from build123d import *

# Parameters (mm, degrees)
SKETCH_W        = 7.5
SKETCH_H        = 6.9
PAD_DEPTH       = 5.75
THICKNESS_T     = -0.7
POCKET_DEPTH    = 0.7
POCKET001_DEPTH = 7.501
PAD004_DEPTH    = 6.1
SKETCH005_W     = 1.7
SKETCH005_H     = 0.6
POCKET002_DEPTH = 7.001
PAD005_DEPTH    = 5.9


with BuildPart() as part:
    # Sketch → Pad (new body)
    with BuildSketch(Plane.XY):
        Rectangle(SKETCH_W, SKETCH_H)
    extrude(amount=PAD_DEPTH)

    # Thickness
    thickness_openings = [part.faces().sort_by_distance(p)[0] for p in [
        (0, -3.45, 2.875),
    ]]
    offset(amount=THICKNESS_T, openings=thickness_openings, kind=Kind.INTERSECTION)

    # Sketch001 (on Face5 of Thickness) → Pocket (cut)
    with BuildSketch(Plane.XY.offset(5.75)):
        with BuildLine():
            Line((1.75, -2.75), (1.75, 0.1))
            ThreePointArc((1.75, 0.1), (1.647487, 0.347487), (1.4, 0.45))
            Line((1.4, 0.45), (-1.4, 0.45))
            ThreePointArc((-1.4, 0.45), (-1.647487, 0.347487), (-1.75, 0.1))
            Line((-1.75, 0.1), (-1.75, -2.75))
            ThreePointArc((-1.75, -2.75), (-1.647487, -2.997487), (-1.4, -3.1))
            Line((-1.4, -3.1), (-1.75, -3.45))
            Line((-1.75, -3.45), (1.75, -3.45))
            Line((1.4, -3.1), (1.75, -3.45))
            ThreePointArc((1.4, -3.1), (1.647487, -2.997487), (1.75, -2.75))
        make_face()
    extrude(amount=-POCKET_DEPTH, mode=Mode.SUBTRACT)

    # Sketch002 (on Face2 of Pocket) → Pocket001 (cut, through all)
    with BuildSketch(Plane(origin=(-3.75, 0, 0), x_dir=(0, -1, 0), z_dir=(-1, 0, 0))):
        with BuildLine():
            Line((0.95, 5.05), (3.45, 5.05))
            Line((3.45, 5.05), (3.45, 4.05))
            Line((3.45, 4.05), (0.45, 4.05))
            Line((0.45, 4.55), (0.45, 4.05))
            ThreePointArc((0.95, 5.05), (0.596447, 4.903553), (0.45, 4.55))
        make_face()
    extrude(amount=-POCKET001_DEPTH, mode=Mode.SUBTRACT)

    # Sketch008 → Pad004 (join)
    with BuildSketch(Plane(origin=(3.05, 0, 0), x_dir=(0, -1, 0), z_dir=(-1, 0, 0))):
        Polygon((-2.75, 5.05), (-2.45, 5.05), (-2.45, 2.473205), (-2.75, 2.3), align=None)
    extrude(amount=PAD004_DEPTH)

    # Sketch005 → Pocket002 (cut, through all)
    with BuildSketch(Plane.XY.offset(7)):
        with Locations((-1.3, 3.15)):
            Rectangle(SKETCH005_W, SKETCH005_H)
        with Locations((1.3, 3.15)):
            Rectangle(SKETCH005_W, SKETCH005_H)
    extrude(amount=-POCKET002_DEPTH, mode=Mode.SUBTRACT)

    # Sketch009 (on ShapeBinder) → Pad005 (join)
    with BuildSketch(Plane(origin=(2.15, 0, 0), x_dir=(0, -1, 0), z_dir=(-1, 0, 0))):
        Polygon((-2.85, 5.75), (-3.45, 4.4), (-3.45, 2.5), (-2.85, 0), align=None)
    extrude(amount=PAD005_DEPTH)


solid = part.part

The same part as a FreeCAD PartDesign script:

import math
import FreeCAD as App
import Part
import Sketcher

V = App.Vector
Q = App.Units.Quantity


def faces_at(feature, points):
    """Names of the faces that lie closest to the given points."""
    faces = feature.Shape.Faces
    near = lambda p: min(range(len(faces)), key=lambda i: faces[i].distToShape(Part.Vertex(*p))[0])
    return sorted({f"Face{near(p) + 1}" for p in points})

doc = App.newDocument("Part")
body = doc.addObject("PartDesign::Body", "Body")

# Sketch on XY plane
sketch1 = body.newObject("Sketcher::SketchObject", "Sketch")
sketch1.AttachmentSupport = (doc.getObject("XY_Plane"), [""])
sketch1.MapMode = "FlatFace"
sketch1.addGeometry(Part.LineSegment(V(-3.75, 3.45, 0), V(-3.75, -3.45, 0)), False)
sketch1.addGeometry(Part.LineSegment(V(-3.75, -3.45, 0), V(3.75, -3.45, 0)), False)
sketch1.addGeometry(Part.LineSegment(V(3.75, -3.45, 0), V(3.75, 3.45, 0)), False)
sketch1.addGeometry(Part.LineSegment(V(3.75, 3.45, 0), V(-3.75, 3.45, 0)), False)
sketch1.addConstraint(Sketcher.Constraint("Coincident", 0, 2, 1, 1))
sketch1.addConstraint(Sketcher.Constraint("Coincident", 1, 2, 2, 1))
sketch1.addConstraint(Sketcher.Constraint("Coincident", 2, 2, 3, 1))
sketch1.addConstraint(Sketcher.Constraint("Coincident", 3, 2, 0, 1))
sketch1.addConstraint(Sketcher.Constraint("Vertical", 0))
sketch1.addConstraint(Sketcher.Constraint("Horizontal", 1))
sketch1.addConstraint(Sketcher.Constraint("Vertical", 2))
sketch1.addConstraint(Sketcher.Constraint("Horizontal", 3))
sketch1.addConstraint(Sketcher.Constraint("Symmetric", 0, 2, 2, 2, -1, 1))
sketch1.addConstraint(Sketcher.Constraint("DistanceX", 1, 1, 1, 2, Q("7.5 mm")))
sketch1.addConstraint(Sketcher.Constraint("DistanceY", 0, 2, 0, 1, Q("6.9 mm")))
pad1 = body.newObject("PartDesign::Pad", "Pad")
pad1.Profile = sketch1
pad1.Length = 5.75
doc.recompute()

thickness = body.newObject("PartDesign::Thickness", "Thickness")
thickness.Base = (pad1, faces_at(pad1, [(0, -3.45, 2.875)]))
thickness.Value = 0.7
thickness.Reversed = True
thickness.Join = "Intersection"

# Sketch on XY plane
sketch2 = body.newObject("Sketcher::SketchObject", "Sketch001")
sketch2.AttachmentSupport = (doc.getObject("XY_Plane"), [""])
sketch2.MapMode = "FlatFace"
sketch2.AttachmentOffset = App.Placement(V(0, 0, 5.75), App.Rotation())
sketch2.addGeometry(Part.LineSegment(V(1.75, -2.75, 0), V(1.75, 0.1, 0)), False)
sketch2.addGeometry(Part.ArcOfCircle(Part.Circle(V(1.399999, 0.099999, 0), V(0, 0, 1), 0.350001), math.radians(0.000209), math.radians(89.999791)), False)
sketch2.addGeometry(Part.LineSegment(V(1.4, 0.45, 0), V(-1.4, 0.45, 0)), False)
sketch2.addGeometry(Part.ArcOfCircle(Part.Circle(V(-1.399999, 0.099999, 0), V(0, 0, 1), 0.350001), math.radians(90.000209), math.radians(179.999791)), False)
sketch2.addGeometry(Part.LineSegment(V(-1.75, 0.1, 0), V(-1.75, -2.75, 0)), False)
sketch2.addGeometry(Part.ArcOfCircle(Part.Circle(V(-1.399999, -2.749999, 0), V(0, 0, 1), 0.350001), math.radians(-179.999791), math.radians(-90.000209)), False)
sketch2.addGeometry(Part.LineSegment(V(-1.4, -3.1, 0), V(-1.75, -3.45, 0)), False)
sketch2.addGeometry(Part.LineSegment(V(-1.75, -3.45, 0), V(1.75, -3.45, 0)), False)
sketch2.addGeometry(Part.LineSegment(V(1.75, -3.45, 0), V(1.4, -3.1, 0)), False)
sketch2.addGeometry(Part.ArcOfCircle(Part.Circle(V(1.399999, -2.749999, 0), V(0, 0, 1), 0.350001), math.radians(-89.999791), math.radians(-0.000209)), False)
sketch2.addConstraint(Sketcher.Constraint("Coincident", 0, 2, 1, 1))
sketch2.addConstraint(Sketcher.Constraint("Coincident", 1, 2, 2, 1))
sketch2.addConstraint(Sketcher.Constraint("Coincident", 2, 2, 3, 1))
sketch2.addConstraint(Sketcher.Constraint("Coincident", 3, 2, 4, 1))
sketch2.addConstraint(Sketcher.Constraint("Coincident", 4, 2, 5, 1))
sketch2.addConstraint(Sketcher.Constraint("Coincident", 5, 2, 6, 1))
sketch2.addConstraint(Sketcher.Constraint("Coincident", 6, 2, 7, 1))
sketch2.addConstraint(Sketcher.Constraint("Coincident", 7, 2, 8, 1))
sketch2.addConstraint(Sketcher.Constraint("Coincident", 8, 2, 9, 1))
sketch2.addConstraint(Sketcher.Constraint("Coincident", 9, 2, 0, 1))
sketch2.addConstraint(Sketcher.Constraint("Vertical", 0))
sketch2.addConstraint(Sketcher.Constraint("Horizontal", 2))
sketch2.addConstraint(Sketcher.Constraint("Vertical", 4))
sketch2.addConstraint(Sketcher.Constraint("Horizontal", 7))
sketch2.addConstraint(Sketcher.Constraint("Equal", 1, 3))
sketch2.addConstraint(Sketcher.Constraint("Equal", 3, 5))
sketch2.addConstraint(Sketcher.Constraint("Equal", 5, 9))
sketch2.addConstraint(Sketcher.Constraint("Symmetric", 5, 3, 9, 3, -2))
sketch2.addConstraint(Sketcher.Constraint("Perpendicular", 6, 8))
sketch2.addConstraint(Sketcher.Constraint("Horizontal", 3, 3, 0, 2))
sketch2.addConstraint(Sketcher.Constraint("Horizontal", 0, 2, 3, 2))
sketch2.addConstraint(Sketcher.Constraint("Horizontal", 9, 3, 4, 2))
sketch2.addConstraint(Sketcher.Constraint("Horizontal", 4, 2, 9, 2))
sketch2.addConstraint(Sketcher.Constraint("Vertical", 9, 3, 1, 2))
sketch2.addConstraint(Sketcher.Constraint("Vertical", 5, 3, 2, 2))
sketch2.addConstraint(Sketcher.Constraint("Vertical", 2, 2, 5, 2))
sketch2.addConstraint(Sketcher.Constraint("Vertical", 4, 2, 6, 2))
sketch2.addConstraint(Sketcher.Constraint("Vertical", 0, 2, 7, 2))
sketch2.addConstraint(Sketcher.Constraint("Vertical", 1, 2, 8, 2))
sketch2.addConstraint(Sketcher.Constraint("Radius", 1, Q("0.350001 mm")))
sketch2.addConstraint(Sketcher.Constraint("DistanceX", 2, 2, 2, 1, Q("2.8 mm")))
sketch2.addConstraint(Sketcher.Constraint("DistanceY", 0, 1, 0, 2, Q("2.85 mm")))
sketch2.addConstraint(Sketcher.Constraint("DistanceY", -1, 1, 1, 3, Q("0.099999 mm")))
pocket1 = body.newObject("PartDesign::Pocket", "Pocket")
pocket1.Profile = sketch2
pocket1.Length = 0.7

# Sketch on YZ plane
sketch3 = body.newObject("Sketcher::SketchObject", "Sketch002")
sketch3.AttachmentSupport = (doc.getObject("YZ_Plane"), [""])
sketch3.MapMode = "FlatFace"
sketch3.AttachmentOffset = App.Placement(V(0, 0, -3.75), App.Rotation())
sketch3.addGeometry(Part.LineSegment(V(-3.45, 5.05, 0), V(-0.95, 5.05, 0)), False)
sketch3.addGeometry(Part.ArcOfCircle(Part.Circle(V(-0.950001, 4.549999, 0), V(0, 0, 1), 0.500001), math.radians(0.000153), math.radians(89.999847)), False)
sketch3.addGeometry(Part.LineSegment(V(-0.45, 4.55, 0), V(-0.45, 4.05, 0)), False)
sketch3.addGeometry(Part.LineSegment(V(-0.45, 4.05, 0), V(-3.45, 4.05, 0)), False)
sketch3.addGeometry(Part.LineSegment(V(-3.45, 4.05, 0), V(-3.45, 5.05, 0)), False)
sketch3.addConstraint(Sketcher.Constraint("Coincident", 0, 2, 1, 2))
sketch3.addConstraint(Sketcher.Constraint("Coincident", 1, 1, 2, 1))
sketch3.addConstraint(Sketcher.Constraint("Coincident", 2, 2, 3, 1))
sketch3.addConstraint(Sketcher.Constraint("Coincident", 3, 2, 4, 1))
sketch3.addConstraint(Sketcher.Constraint("Coincident", 4, 2, 0, 1))
sketch3.addConstraint(Sketcher.Constraint("Horizontal", 0))
sketch3.addConstraint(Sketcher.Constraint("Vertical", 2))
sketch3.addConstraint(Sketcher.Constraint("Horizontal", 3))
sketch3.addConstraint(Sketcher.Constraint("Vertical", 4))
sketch3.addConstraint(Sketcher.Constraint("Vertical", 1, 3, 0, 2))
sketch3.addConstraint(Sketcher.Constraint("Radius", 1, Q("0.500001 mm")))
sketch3.addConstraint(Sketcher.Constraint("DistanceX", 3, 2, 3, 1, Q("3 mm")))
sketch3.addConstraint(Sketcher.Constraint("DistanceY", 4, 1, 4, 2, Q("1 mm")))
sketch3.addConstraint(Sketcher.Constraint("DistanceY", 2, 2, 2, 1, Q("0.5 mm")))
sketch3.addConstraint(Sketcher.Constraint("DistanceX", 1, 3, -1, 1, Q("0.950001 mm")))
sketch3.addConstraint(Sketcher.Constraint("DistanceY", -1, 1, 1, 3, Q("4.549999 mm")))
pocket2 = body.newObject("PartDesign::Pocket", "Pocket001")
pocket2.Profile = sketch3
pocket2.Type = "ThroughAll"
pocket2.Reversed = True

# Sketch on YZ plane
sketch4 = body.newObject("Sketcher::SketchObject", "Sketch003")
sketch4.AttachmentSupport = (doc.getObject("YZ_Plane"), [""])
sketch4.MapMode = "FlatFace"
sketch4.AttachmentOffset = App.Placement(V(0, 0, 3.05), App.Rotation())
sketch4.addGeometry(Part.LineSegment(V(2.45, 5.05, 0), V(2.75, 5.05, 0)), False)
sketch4.addGeometry(Part.LineSegment(V(2.75, 5.05, 0), V(2.75, 2.3, 0)), False)
sketch4.addGeometry(Part.LineSegment(V(2.75, 2.3, 0), V(2.45, 2.473205, 0)), False)
sketch4.addGeometry(Part.LineSegment(V(2.45, 2.473205, 0), V(2.45, 5.05, 0)), False)
sketch4.addConstraint(Sketcher.Constraint("Coincident", 0, 2, 1, 1))
sketch4.addConstraint(Sketcher.Constraint("Coincident", 1, 2, 2, 1))
sketch4.addConstraint(Sketcher.Constraint("Coincident", 2, 2, 3, 1))
sketch4.addConstraint(Sketcher.Constraint("Coincident", 3, 2, 0, 1))
sketch4.addConstraint(Sketcher.Constraint("Horizontal", 0))
sketch4.addConstraint(Sketcher.Constraint("Vertical", 1))
sketch4.addConstraint(Sketcher.Constraint("Vertical", 3))
sketch4.addConstraint(Sketcher.Constraint("Angle", 2, Q("150.000012 deg")))
sketch4.addConstraint(Sketcher.Constraint("DistanceX", 0, 1, 0, 2, Q("0.3 mm")))
sketch4.addConstraint(Sketcher.Constraint("DistanceY", 1, 2, 1, 1, Q("2.75 mm")))
sketch4.addConstraint(Sketcher.Constraint("DistanceY", -1, 1, 1, 2, Q("2.3 mm")))
sketch4.addConstraint(Sketcher.Constraint("DistanceX", -1, 1, 0, 2, Q("2.75 mm")))
pad2 = body.newObject("PartDesign::Pad", "Pad001")
pad2.Profile = sketch4
pad2.Length = 6.1
pad2.Reversed = True

# Sketch on XY plane
sketch5 = body.newObject("Sketcher::SketchObject", "Sketch004")
sketch5.AttachmentSupport = (doc.getObject("XY_Plane"), [""])
sketch5.MapMode = "FlatFace"
sketch5.AttachmentOffset = App.Placement(V(0, 0, 7), App.Rotation())
sketch5.addGeometry(Part.LineSegment(V(-2.15, 3.45, 0), V(-2.15, 2.85, 0)), False)
sketch5.addGeometry(Part.LineSegment(V(-2.15, 2.85, 0), V(-0.45, 2.85, 0)), False)
sketch5.addGeometry(Part.LineSegment(V(-0.45, 2.85, 0), V(-0.45, 3.45, 0)), False)
sketch5.addGeometry(Part.LineSegment(V(-0.45, 3.45, 0), V(-2.15, 3.45, 0)), False)
sketch5.addGeometry(Part.LineSegment(V(0.45, 3.45, 0), V(0.45, 2.85, 0)), False)
sketch5.addGeometry(Part.LineSegment(V(0.45, 2.85, 0), V(2.15, 2.85, 0)), False)
sketch5.addGeometry(Part.LineSegment(V(2.15, 2.85, 0), V(2.15, 3.45, 0)), False)
sketch5.addGeometry(Part.LineSegment(V(2.15, 3.45, 0), V(0.45, 3.45, 0)), False)
sketch5.addConstraint(Sketcher.Constraint("Coincident", 0, 2, 1, 1))
sketch5.addConstraint(Sketcher.Constraint("Coincident", 1, 2, 2, 1))
sketch5.addConstraint(Sketcher.Constraint("Coincident", 2, 2, 3, 1))
sketch5.addConstraint(Sketcher.Constraint("Coincident", 3, 2, 0, 1))
sketch5.addConstraint(Sketcher.Constraint("Coincident", 4, 2, 5, 1))
sketch5.addConstraint(Sketcher.Constraint("Coincident", 5, 2, 6, 1))
sketch5.addConstraint(Sketcher.Constraint("Coincident", 6, 2, 7, 1))
sketch5.addConstraint(Sketcher.Constraint("Coincident", 7, 2, 4, 1))
sketch5.addConstraint(Sketcher.Constraint("Vertical", 0))
sketch5.addConstraint(Sketcher.Constraint("Horizontal", 1))
sketch5.addConstraint(Sketcher.Constraint("Vertical", 2))
sketch5.addConstraint(Sketcher.Constraint("Horizontal", 3))
sketch5.addConstraint(Sketcher.Constraint("Vertical", 4))
sketch5.addConstraint(Sketcher.Constraint("Horizontal", 5))
sketch5.addConstraint(Sketcher.Constraint("Vertical", 6))
sketch5.addConstraint(Sketcher.Constraint("Horizontal", 7))
sketch5.addConstraint(Sketcher.Constraint("Symmetric", 1, 2, 4, 2, -2))
sketch5.addConstraint(Sketcher.Constraint("Symmetric", 3, 2, 6, 2, -2))
sketch5.addConstraint(Sketcher.Constraint("DistanceX", 1, 1, 1, 2, Q("1.7 mm")))
sketch5.addConstraint(Sketcher.Constraint("DistanceY", 0, 2, 0, 1, Q("0.6 mm")))
sketch5.addConstraint(Sketcher.Constraint("DistanceX", 1, 2, 4, 2, Q("0.9 mm")))
sketch5.addConstraint(Sketcher.Constraint("DistanceY", -1, 1, 0, 2, Q("2.85 mm")))
pocket3 = body.newObject("PartDesign::Pocket", "Pocket002")
pocket3.Profile = sketch5
pocket3.Type = "ThroughAll"

# Sketch on YZ plane
sketch6 = body.newObject("Sketcher::SketchObject", "Sketch005")
sketch6.AttachmentSupport = (doc.getObject("YZ_Plane"), [""])
sketch6.MapMode = "FlatFace"
sketch6.AttachmentOffset = App.Placement(V(0, 0, 2.15), App.Rotation())
sketch6.addGeometry(Part.LineSegment(V(2.85, 5.75, 0), V(3.45, 4.4, 0)), False)
sketch6.addGeometry(Part.LineSegment(V(3.45, 4.4, 0), V(3.45, 2.5, 0)), False)
sketch6.addGeometry(Part.LineSegment(V(3.45, 2.5, 0), V(2.85, 0, 0)), False)
sketch6.addGeometry(Part.LineSegment(V(2.85, 0, 0), V(2.85, 5.75, 0)), False)
sketch6.addConstraint(Sketcher.Constraint("Coincident", 0, 2, 1, 1))
sketch6.addConstraint(Sketcher.Constraint("Coincident", 1, 2, 2, 1))
sketch6.addConstraint(Sketcher.Constraint("Coincident", 2, 2, 3, 1))
sketch6.addConstraint(Sketcher.Constraint("Coincident", 3, 2, 0, 1))
sketch6.addConstraint(Sketcher.Constraint("Vertical", 1))
sketch6.addConstraint(Sketcher.Constraint("Vertical", 3))
sketch6.addConstraint(Sketcher.Constraint("PointOnObject", 2, 2, -1))
sketch6.addConstraint(Sketcher.Constraint("DistanceY", 1, 2, 1, 1, Q("1.9 mm")))
sketch6.addConstraint(Sketcher.Constraint("DistanceY", 3, 1, 3, 2, Q("5.75 mm")))
sketch6.addConstraint(Sketcher.Constraint("DistanceY", -1, 1, 0, 2, Q("4.4 mm")))
sketch6.addConstraint(Sketcher.Constraint("DistanceX", 2, 2, 1, 2, Q("0.6 mm")))
sketch6.addConstraint(Sketcher.Constraint("DistanceX", -1, 1, 0, 2, Q("3.45 mm")))
pad3 = body.newObject("PartDesign::Pad", "Pad002")
pad3.Profile = sketch6
pad3.Length = 5.9
pad3.Reversed = True

doc.recompute()
